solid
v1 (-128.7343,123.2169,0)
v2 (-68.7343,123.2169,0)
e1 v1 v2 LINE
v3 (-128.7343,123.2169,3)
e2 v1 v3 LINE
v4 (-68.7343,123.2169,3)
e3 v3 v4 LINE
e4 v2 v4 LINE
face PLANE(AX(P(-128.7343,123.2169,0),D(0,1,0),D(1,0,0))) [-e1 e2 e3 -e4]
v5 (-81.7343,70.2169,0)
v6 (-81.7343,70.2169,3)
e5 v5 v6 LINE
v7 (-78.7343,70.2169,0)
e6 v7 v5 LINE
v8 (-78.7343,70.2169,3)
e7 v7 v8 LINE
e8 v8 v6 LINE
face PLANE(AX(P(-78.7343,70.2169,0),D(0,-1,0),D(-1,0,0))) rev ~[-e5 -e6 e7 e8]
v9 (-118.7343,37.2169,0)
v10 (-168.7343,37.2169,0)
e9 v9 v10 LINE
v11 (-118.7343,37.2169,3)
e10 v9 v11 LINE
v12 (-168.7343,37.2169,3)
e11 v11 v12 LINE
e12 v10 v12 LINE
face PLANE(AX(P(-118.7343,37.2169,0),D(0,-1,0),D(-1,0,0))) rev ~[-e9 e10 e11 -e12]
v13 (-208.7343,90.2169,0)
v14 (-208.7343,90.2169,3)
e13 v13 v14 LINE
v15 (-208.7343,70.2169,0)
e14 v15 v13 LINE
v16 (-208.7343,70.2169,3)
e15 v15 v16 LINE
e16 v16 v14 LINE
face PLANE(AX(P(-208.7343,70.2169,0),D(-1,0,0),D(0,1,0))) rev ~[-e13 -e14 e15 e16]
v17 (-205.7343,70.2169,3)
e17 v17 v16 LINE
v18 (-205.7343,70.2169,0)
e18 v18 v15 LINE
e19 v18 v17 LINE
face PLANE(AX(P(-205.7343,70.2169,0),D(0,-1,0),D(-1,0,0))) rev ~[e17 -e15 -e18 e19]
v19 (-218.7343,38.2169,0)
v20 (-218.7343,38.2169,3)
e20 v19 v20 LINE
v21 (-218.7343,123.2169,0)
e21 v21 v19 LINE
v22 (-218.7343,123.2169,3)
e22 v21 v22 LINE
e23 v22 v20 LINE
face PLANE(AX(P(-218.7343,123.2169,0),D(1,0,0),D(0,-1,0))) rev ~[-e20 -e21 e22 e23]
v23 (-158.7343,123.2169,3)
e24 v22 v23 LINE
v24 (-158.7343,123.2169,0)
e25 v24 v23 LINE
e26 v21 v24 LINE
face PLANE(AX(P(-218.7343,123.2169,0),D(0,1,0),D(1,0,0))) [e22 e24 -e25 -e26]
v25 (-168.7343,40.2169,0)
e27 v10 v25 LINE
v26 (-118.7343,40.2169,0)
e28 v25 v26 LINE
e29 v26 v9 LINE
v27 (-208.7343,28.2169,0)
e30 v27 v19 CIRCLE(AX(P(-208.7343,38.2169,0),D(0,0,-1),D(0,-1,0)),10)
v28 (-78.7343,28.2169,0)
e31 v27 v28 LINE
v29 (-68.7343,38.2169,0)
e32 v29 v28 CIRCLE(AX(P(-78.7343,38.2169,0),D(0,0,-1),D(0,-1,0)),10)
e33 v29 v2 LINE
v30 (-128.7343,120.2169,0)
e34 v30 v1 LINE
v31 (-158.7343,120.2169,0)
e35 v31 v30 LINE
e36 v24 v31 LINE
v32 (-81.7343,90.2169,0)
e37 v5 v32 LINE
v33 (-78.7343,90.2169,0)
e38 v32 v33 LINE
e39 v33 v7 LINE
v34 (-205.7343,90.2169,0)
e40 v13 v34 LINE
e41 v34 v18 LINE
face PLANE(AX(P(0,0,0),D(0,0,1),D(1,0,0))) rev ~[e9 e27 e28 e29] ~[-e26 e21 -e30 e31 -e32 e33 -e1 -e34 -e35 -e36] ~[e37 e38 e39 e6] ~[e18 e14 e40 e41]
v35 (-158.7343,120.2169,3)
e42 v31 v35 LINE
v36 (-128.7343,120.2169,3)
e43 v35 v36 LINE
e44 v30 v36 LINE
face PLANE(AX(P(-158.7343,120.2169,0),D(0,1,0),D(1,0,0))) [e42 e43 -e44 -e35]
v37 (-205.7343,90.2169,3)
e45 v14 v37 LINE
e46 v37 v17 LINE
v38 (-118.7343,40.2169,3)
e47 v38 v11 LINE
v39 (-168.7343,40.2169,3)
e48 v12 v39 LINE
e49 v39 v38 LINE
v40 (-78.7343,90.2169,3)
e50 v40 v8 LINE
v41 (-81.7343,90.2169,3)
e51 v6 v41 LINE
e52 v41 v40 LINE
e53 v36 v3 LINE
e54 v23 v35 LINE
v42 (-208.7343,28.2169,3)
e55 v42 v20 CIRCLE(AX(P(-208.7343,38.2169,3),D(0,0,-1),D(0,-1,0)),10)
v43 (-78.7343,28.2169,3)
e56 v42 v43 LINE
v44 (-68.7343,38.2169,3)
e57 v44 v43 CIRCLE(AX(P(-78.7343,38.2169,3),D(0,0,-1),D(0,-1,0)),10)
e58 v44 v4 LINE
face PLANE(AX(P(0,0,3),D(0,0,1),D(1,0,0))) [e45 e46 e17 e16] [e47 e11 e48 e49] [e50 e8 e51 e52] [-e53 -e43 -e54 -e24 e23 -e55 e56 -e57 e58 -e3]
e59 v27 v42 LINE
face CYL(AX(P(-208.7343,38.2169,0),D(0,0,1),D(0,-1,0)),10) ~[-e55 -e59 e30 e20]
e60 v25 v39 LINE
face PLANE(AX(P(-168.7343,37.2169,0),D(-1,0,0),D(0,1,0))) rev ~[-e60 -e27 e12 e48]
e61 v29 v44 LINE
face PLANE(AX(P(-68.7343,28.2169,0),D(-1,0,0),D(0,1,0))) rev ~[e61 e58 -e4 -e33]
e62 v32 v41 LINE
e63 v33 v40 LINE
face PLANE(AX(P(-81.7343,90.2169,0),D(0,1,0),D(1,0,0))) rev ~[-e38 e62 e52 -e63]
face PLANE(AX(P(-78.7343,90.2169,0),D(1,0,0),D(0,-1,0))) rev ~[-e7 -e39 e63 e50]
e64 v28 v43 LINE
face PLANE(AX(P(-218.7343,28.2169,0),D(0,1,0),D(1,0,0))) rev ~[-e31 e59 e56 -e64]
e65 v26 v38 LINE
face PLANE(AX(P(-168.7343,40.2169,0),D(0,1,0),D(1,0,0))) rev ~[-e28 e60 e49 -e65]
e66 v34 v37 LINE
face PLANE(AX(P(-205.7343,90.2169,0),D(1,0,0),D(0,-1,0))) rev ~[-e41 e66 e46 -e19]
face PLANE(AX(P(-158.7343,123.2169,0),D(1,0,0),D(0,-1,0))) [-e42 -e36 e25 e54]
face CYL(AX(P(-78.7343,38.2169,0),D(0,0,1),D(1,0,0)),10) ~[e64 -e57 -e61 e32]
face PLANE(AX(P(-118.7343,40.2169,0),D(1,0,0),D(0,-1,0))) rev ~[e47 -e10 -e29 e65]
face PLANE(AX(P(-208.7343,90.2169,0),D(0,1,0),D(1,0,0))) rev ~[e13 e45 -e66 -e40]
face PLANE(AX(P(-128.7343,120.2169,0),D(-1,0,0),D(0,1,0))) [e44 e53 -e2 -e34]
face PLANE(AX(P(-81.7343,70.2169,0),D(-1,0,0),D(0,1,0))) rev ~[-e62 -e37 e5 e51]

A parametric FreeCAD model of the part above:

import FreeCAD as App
import Part
import Sketcher
from FreeCAD import Vector


def edges_at(feature, points):
    """Names of the edges that pass closest to the given points."""
    edges = feature.Shape.Edges
    near = lambda p: min(range(len(edges)), key=lambda i: edges[i].distToShape(Part.Vertex(*p))[0])
    return sorted({f"Edge{near(p) + 1}" for p in points})

doc = App.newDocument("Part")
params = doc.addObject("Spreadsheet::Sheet", "Params")
for row, (alias, value) in enumerate([
    ("sketch1_width", "150 mm"),
    ("sketch1_width2", "30 mm"),
    ("sketch1_width3", "50 mm"),
    ("sketch1_width4", "3 mm"),
    ("sketch1_height", "95 mm"),
    ("pad1_length", "3 mm"),
    ("fillet_radius", "10 mm"),
], start=1):
    params.set(f"A{row}", alias)
    params.set(f"B{row}", "=" + value)
    params.setAlias(f"B{row}", alias)

body = doc.addObject("PartDesign::Body", "Body")

# Sketch on XY plane
sketch1 = body.newObject("Sketcher::SketchObject", "Sketch")
sketch1.AttachmentSupport = (doc.getObject("XY_Plane"), [""])
sketch1.MapMode = "FlatFace"
sketch1.addGeometry([
    Part.LineSegment(Vector(-158.7, 123.2, 0), Vector(-218.7, 123.2, 0)),  # 0
    Part.LineSegment(Vector(-218.7, 123.2, 0), Vector(-218.7, 28.2, 0)),  # 1
    Part.LineSegment(Vector(-218.7, 28.2, 0), Vector(-68.7, 28.2, 0)),  # 2
    Part.LineSegment(Vector(-68.7, 28.2, 0), Vector(-68.7, 123.2, 0)),  # 3
    Part.LineSegment(Vector(-68.7, 123.2, 0), Vector(-128.7, 123.2, 0)),  # 4
    Part.LineSegment(Vector(-128.7, 123.2, 0), Vector(-128.7, 120.2, 0)),  # 5
    Part.LineSegment(Vector(-128.7, 120.2, 0), Vector(-158.7, 120.2, 0)),  # 6
    Part.LineSegment(Vector(-158.7, 120.2, 0), Vector(-158.7, 123.2, 0)),  # 7
    Part.LineSegment(Vector(-168.7, 37.2, 0), Vector(-168.7, 40.2, 0)),  # 8
    Part.LineSegment(Vector(-168.7, 40.2, 0), Vector(-118.7, 40.2, 0)),  # 9
    Part.LineSegment(Vector(-118.7, 40.2, 0), Vector(-118.7, 37.2, 0)),  # 10
    Part.LineSegment(Vector(-118.7, 37.2, 0), Vector(-168.7, 37.2, 0)),  # 11
    Part.LineSegment(Vector(-208.7, 70.2, 0), Vector(-208.7, 90.2, 0)),  # 12
    Part.LineSegment(Vector(-208.7, 90.2, 0), Vector(-205.7, 90.2, 0)),  # 13
    Part.LineSegment(Vector(-205.7, 90.2, 0), Vector(-205.7, 70.2, 0)),  # 14
    Part.LineSegment(Vector(-205.7, 70.2, 0), Vector(-208.7, 70.2, 0)),  # 15
    Part.LineSegment(Vector(-81.7, 70.2, 0), Vector(-81.7, 90.2, 0)),  # 16
    Part.LineSegment(Vector(-81.7, 90.2, 0), Vector(-78.7, 90.2, 0)),  # 17
    Part.LineSegment(Vector(-78.7, 90.2, 0), Vector(-78.7, 70.2, 0)),  # 18
    Part.LineSegment(Vector(-78.7, 70.2, 0), Vector(-81.7, 70.2, 0)),  # 19
], False)
sketch1.addConstraint([
    Sketcher.Constraint("Coincident", 0, 2, 1, 1),
    Sketcher.Constraint("Coincident", 1, 2, 2, 1),
    Sketcher.Constraint("Coincident", 2, 2, 3, 1),
    Sketcher.Constraint("Coincident", 3, 2, 4, 1),
    Sketcher.Constraint("Coincident", 4, 2, 5, 1),
    Sketcher.Constraint("Coincident", 5, 2, 6, 1),
    Sketcher.Constraint("Coincident", 6, 2, 7, 1),
    Sketcher.Constraint("Coincident", 7, 2, 0, 1),
    Sketcher.Constraint("Coincident", 8, 2, 9, 1),
    Sketcher.Constraint("Coincident", 9, 2, 10, 1),
    Sketcher.Constraint("Coincident", 10, 2, 11, 1),
    Sketcher.Constraint("Coincident", 11, 2, 8, 1),
    Sketcher.Constraint("Coincident", 12, 2, 13, 1),
    Sketcher.Constraint("Coincident", 13, 2, 14, 1),
    Sketcher.Constraint("Coincident", 14, 2, 15, 1),
    Sketcher.Constraint("Coincident", 15, 2, 12, 1),
    Sketcher.Constraint("Coincident", 16, 2, 17, 1),
    Sketcher.Constraint("Coincident", 17, 2, 18, 1),
    Sketcher.Constraint("Coincident", 18, 2, 19, 1),
    Sketcher.Constraint("Coincident", 19, 2, 16, 1),
    Sketcher.Constraint("Horizontal", 0),
    Sketcher.Constraint("Vertical", 1),
    Sketcher.Constraint("Horizontal", 2),
    Sketcher.Constraint("Vertical", 3),
    Sketcher.Constraint("Horizontal", 4),
    Sketcher.Constraint("Vertical", 5),
    Sketcher.Constraint("Horizontal", 6),
    Sketcher.Constraint("Vertical", 7),
    Sketcher.Constraint("Vertical", 8),
    Sketcher.Constraint("Horizontal", 9),
    Sketcher.Constraint("Vertical", 10),
    Sketcher.Constraint("Horizontal", 11),
    Sketcher.Constraint("Vertical", 12),
    Sketcher.Constraint("Horizontal", 13),
    Sketcher.Constraint("Vertical", 14),
    Sketcher.Constraint("Horizontal", 15),
    Sketcher.Constraint("Vertical", 16),
    Sketcher.Constraint("Horizontal", 17),
    Sketcher.Constraint("Vertical", 18),
    Sketcher.Constraint("Horizontal", 19),
    Sketcher.Constraint("Horizontal", 0, 2, 3, 2),
    Sketcher.Constraint("Horizontal", 13, 2, 16, 2),
    Sketcher.Constraint("Horizontal", 15, 2, 18, 2),
    Sketcher.Constraint("Equal", 0, 4),
    Sketcher.Constraint("Equal", 15, 17),
    Sketcher.Constraint("Equal", 19, 5),
    Sketcher.Constraint("Equal", 7, 8),
    Sketcher.Constraint("DistanceX", 2, 1, 2, 2, 150.0),
    Sketcher.Constraint("DistanceX", 6, 2, 6, 1, 30.0),
    Sketcher.Constraint("DistanceX", 9, 1, 9, 2, 50.0),
    Sketcher.Constraint("DistanceX", 13, 1, 13, 2, 3.0),
    Sketcher.Constraint("DistanceY", 1, 2, 1, 1, 95.0),
    Sketcher.Constraint("DistanceY", 12, 1, 12, 2, 20.0),
    Sketcher.Constraint("DistanceX", 1, 2, 8, 2, 50.0),
    Sketcher.Constraint("DistanceY", 2, 2, 10, 2, 9.0),
    Sketcher.Constraint("DistanceX", 0, 2, 12, 2, 10.0),
    Sketcher.Constraint("DistanceY", 12, 2, 6, 2, 30.0),
    Sketcher.Constraint("DistanceX", 17, 2, 3, 2, 10.0),
    Sketcher.Constraint("DistanceY", -1, 1, 0, 2, 123.217),
    Sketcher.Constraint("DistanceX", 0, 2, -1, 1, 218.7343),
])
sketch1.setExpression("Constraints[47]", "Params.sketch1_width")
sketch1.setExpression("Constraints[48]", "Params.sketch1_width2")
sketch1.setExpression("Constraints[49]", "Params.sketch1_width3")
sketch1.setExpression("Constraints[50]", "Params.sketch1_width4")
sketch1.setExpression("Constraints[51]", "Params.sketch1_height")
pad1 = body.newObject("PartDesign::Pad", "Pad")
pad1.Profile = sketch1
pad1.setExpression("Length", "Params.pad1_length")
doc.recompute()

fillet = body.newObject("PartDesign::Fillet", "Fillet")
fillet.Base = (pad1, edges_at(pad1, [(-68.734, 28.217, 1.5), (-218.734, 28.217, 1.5)]))
fillet.setExpression("Radius", "Params.fillet_radius")

doc.recompute()
